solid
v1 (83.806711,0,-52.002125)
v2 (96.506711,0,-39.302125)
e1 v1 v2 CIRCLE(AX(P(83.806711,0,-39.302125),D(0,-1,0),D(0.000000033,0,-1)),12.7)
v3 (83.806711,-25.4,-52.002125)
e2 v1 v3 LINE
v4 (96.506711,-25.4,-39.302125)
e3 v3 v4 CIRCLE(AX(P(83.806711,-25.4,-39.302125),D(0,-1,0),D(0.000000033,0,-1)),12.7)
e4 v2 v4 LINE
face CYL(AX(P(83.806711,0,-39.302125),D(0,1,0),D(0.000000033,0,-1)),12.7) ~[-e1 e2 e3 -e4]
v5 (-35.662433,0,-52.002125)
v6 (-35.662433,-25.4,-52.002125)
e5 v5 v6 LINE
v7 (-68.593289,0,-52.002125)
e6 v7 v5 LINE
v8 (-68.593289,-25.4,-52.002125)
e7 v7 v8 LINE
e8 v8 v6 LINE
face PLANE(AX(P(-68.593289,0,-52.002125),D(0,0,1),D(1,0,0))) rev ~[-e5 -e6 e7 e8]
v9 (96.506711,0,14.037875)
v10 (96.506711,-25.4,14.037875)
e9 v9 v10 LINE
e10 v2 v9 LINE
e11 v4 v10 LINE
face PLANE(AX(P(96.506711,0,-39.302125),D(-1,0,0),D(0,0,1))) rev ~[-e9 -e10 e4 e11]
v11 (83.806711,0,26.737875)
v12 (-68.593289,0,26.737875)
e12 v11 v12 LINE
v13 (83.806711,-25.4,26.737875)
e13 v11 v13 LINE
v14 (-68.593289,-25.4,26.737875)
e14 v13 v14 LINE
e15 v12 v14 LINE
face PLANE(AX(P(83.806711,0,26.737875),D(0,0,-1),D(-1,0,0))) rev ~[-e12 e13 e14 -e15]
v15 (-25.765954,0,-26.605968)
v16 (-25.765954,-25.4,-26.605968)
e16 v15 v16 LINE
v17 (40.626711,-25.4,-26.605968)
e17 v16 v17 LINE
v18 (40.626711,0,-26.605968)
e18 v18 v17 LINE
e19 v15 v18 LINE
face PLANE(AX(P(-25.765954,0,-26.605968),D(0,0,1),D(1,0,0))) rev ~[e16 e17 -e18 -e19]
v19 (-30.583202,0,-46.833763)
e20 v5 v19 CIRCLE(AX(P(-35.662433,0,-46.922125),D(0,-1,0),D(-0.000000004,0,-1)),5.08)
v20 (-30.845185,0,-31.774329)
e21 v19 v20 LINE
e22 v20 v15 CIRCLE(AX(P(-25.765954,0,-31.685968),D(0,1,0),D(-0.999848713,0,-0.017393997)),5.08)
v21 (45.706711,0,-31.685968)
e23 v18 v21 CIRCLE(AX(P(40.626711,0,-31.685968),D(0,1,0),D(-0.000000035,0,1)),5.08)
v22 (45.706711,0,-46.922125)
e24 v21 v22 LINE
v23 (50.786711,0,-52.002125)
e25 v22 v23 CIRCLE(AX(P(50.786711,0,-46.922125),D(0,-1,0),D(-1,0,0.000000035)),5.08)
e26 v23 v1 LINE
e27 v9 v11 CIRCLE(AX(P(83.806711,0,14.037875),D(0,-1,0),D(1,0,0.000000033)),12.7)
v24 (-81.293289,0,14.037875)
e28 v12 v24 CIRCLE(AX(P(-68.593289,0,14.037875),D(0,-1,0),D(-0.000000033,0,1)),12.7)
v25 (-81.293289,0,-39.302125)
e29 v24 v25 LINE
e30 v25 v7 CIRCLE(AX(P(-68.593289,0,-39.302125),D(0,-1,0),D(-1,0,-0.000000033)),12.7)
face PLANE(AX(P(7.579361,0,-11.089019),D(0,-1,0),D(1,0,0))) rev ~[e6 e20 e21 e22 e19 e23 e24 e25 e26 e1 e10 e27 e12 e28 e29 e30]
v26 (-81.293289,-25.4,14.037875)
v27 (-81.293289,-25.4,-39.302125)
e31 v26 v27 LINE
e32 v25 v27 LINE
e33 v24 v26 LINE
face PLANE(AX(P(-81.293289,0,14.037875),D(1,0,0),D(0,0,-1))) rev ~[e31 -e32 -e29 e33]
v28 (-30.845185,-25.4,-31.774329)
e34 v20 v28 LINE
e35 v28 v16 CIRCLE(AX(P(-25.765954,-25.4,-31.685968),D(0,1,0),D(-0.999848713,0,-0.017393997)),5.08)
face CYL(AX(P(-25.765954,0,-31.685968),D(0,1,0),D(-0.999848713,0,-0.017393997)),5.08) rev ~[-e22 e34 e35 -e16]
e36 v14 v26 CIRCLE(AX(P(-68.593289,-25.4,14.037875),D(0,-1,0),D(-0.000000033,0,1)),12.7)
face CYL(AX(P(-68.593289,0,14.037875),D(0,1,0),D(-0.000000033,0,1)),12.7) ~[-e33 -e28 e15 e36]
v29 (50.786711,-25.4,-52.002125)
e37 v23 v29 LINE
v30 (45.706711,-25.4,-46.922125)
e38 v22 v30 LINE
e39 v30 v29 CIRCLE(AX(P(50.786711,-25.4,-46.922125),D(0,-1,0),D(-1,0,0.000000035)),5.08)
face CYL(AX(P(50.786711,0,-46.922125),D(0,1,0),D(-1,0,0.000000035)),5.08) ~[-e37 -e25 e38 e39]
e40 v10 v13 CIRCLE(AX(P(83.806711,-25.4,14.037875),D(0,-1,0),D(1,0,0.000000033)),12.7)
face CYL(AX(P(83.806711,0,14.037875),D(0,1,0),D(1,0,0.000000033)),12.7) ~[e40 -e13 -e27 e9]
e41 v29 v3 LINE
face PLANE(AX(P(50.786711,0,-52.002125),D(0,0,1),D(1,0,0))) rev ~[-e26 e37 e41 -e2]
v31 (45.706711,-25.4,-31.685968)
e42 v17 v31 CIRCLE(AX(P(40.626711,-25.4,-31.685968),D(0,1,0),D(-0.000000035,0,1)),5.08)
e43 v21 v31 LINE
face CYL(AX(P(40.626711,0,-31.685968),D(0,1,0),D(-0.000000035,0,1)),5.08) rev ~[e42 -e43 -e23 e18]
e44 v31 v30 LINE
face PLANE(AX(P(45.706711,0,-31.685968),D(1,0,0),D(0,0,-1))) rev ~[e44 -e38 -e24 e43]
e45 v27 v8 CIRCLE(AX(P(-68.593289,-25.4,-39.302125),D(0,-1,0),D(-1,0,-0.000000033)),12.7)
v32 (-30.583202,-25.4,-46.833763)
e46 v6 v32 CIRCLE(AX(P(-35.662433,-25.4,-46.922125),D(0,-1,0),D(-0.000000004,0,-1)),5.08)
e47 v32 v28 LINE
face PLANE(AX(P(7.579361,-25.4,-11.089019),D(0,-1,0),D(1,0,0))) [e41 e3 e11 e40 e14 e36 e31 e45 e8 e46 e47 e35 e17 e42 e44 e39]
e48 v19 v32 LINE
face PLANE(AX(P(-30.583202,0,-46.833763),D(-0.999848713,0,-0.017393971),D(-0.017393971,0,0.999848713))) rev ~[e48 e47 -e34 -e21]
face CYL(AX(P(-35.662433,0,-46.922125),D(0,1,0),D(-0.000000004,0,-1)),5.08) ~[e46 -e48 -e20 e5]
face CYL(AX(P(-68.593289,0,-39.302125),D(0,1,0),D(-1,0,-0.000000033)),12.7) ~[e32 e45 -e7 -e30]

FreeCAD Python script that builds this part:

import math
import FreeCAD as App
import Part
import Sketcher

V = App.Vector
Q = App.Units.Quantity

doc = App.newDocument("Part")
body = doc.addObject("PartDesign::Body", "Body")

# Sketch on XZ plane
sketch1 = body.newObject("Sketcher::SketchObject", "Sketch")
sketch1.AttachmentSupport = (doc.getObject("XZ_Plane"), [""])
sketch1.MapMode = "FlatFace"
sketch1.addGeometry(Part.LineSegment(V(83.806711, 26.737875, 0), V(-68.593289, 26.737875, 0)), False)
sketch1.addGeometry(Part.ArcOfCircle(Part.Circle(V(-68.593289, 14.037875, 0), V(0, 0, 1), 12.7), math.radians(90.000002), math.radians(179.999998)), False)
sketch1.addGeometry(Part.LineSegment(V(-81.293289, 14.037875, 0), V(-81.293289, -39.302125, 0)), False)
sketch1.addGeometry(Part.ArcOfCircle(Part.Circle(V(-68.593289, -39.302125, 0), V(0, 0, 1), 12.7), math.radians(-179.999998), math.radians(-90.000002)), False)
sketch1.addGeometry(Part.LineSegment(V(-68.593289, -52.002125, 0), V(-35.662433, -52.002125, 0)), False)
sketch1.addGeometry(Part.ArcOfCircle(Part.Circle(V(-35.662433, -46.922125, 0), V(0, 0, 1), 5.08), math.radians(-90), math.radians(0.996664)), False)
sketch1.addGeometry(Part.LineSegment(V(-30.583202, -46.833763, 0), V(-30.845185, -31.774329, 0)), False)
sketch1.addGeometry(Part.ArcOfCircle(Part.Circle(V(-25.765954, -31.685968, 0), V(0, 0, 1), 5.08), math.radians(90), math.radians(180.996653)), False)
sketch1.addGeometry(Part.LineSegment(V(-25.765954, -26.605968, 0), V(40.626711, -26.605968, 0)), False)
sketch1.addGeometry(Part.ArcOfCircle(Part.Circle(V(40.626711, -31.685968, 0), V(0, 0, 1), 5.08), math.radians(-0.000002), math.radians(90.000002)), False)
sketch1.addGeometry(Part.LineSegment(V(45.706711, -31.685968, 0), V(45.706711, -46.922125, 0)), False)
sketch1.addGeometry(Part.ArcOfCircle(Part.Circle(V(50.786711, -46.922125, 0), V(0, 0, 1), 5.08), math.radians(179.999998), math.radians(270.000002)), False)
sketch1.addGeometry(Part.LineSegment(V(50.786711, -52.002125, 0), V(83.806711, -52.002125, 0)), False)
sketch1.addGeometry(Part.ArcOfCircle(Part.Circle(V(83.806711, -39.302125, 0), V(0, 0, 1), 12.7), math.radians(-89.999998), math.radians(-0.000002)), False)
sketch1.addGeometry(Part.LineSegment(V(96.506711, -39.302125, 0), V(96.506711, 14.037875, 0)), False)
sketch1.addGeometry(Part.ArcOfCircle(Part.Circle(V(83.806711, 14.037875, 0), V(0, 0, 1), 12.7), math.radians(0.000002), math.radians(89.999998)), False)
sketch1.addConstraint(Sketcher.Constraint("Tangent", 0, 2, 1, 1))
sketch1.addConstraint(Sketcher.Constraint("Tangent", 1, 2, 2, 1))
sketch1.addConstraint(Sketcher.Constraint("Tangent", 2, 2, 3, 1))
sketch1.addConstraint(Sketcher.Constraint("Tangent", 3, 2, 4, 1))
sketch1.addConstraint(Sketcher.Constraint("Tangent", 4, 2, 5, 1))
sketch1.addConstraint(Sketcher.Constraint("Tangent", 5, 2, 6, 1))
sketch1.addConstraint(Sketcher.Constraint("Tangent", 6, 2, 7, 2))
sketch1.addConstraint(Sketcher.Constraint("Tangent", 7, 1, 8, 1))
sketch1.addConstraint(Sketcher.Constraint("Tangent", 8, 2, 9, 2))
sketch1.addConstraint(Sketcher.Constraint("Tangent", 9, 1, 10, 1))
sketch1.addConstraint(Sketcher.Constraint("Tangent", 10, 2, 11, 1))
sketch1.addConstraint(Sketcher.Constraint("Tangent", 11, 2, 12, 1))
sketch1.addConstraint(Sketcher.Constraint("Tangent", 12, 2, 13, 1))
sketch1.addConstraint(Sketcher.Constraint("Tangent", 13, 2, 14, 1))
sketch1.addConstraint(Sketcher.Constraint("Tangent", 14, 2, 15, 1))
sketch1.addConstraint(Sketcher.Constraint("Tangent", 15, 2, 0, 1))
sketch1.addConstraint(Sketcher.Constraint("Horizontal", 0))
sketch1.addConstraint(Sketcher.Constraint("Vertical", 2))
sketch1.addConstraint(Sketcher.Constraint("Horizontal", 4))
sketch1.addConstraint(Sketcher.Constraint("Horizontal", 8))
sketch1.addConstraint(Sketcher.Constraint("Vertical", 10))
sketch1.addConstraint(Sketcher.Constraint("Horizontal", 12))
sketch1.addConstraint(Sketcher.Constraint("Vertical", 14))
sketch1.addConstraint(Sketcher.Constraint("Equal", 1, 3))
sketch1.addConstraint(Sketcher.Constraint("Equal", 5, 7))
sketch1.addConstraint(Sketcher.Constraint("Equal", 7, 9))
sketch1.addConstraint(Sketcher.Constraint("Equal", 9, 11))
sketch1.addConstraint(Sketcher.Constraint("Equal", 3, 13))
sketch1.addConstraint(Sketcher.Constraint("Equal", 13, 15))
sketch1.addConstraint(Sketcher.Constraint("Horizontal", 5, 3, 11, 3))
sketch1.addConstraint(Sketcher.Constraint("Radius", 1, Q("0.5 in")))
sketch1.addConstraint(Sketcher.Constraint("Radius", 5, Q("0.2 in")))
sketch1.addConstraint(Sketcher.Constraint("DistanceX", 0, 2, 0, 1, Q("6 in")))
sketch1.addConstraint(Sketcher.Constraint("DistanceX", 12, 1, 12, 2, Q("1.3 in")))
sketch1.addConstraint(Sketcher.Constraint("DistanceY", 2, 2, 2, 1, Q("2.1 in")))
sketch1.addConstraint(Sketcher.Constraint("DistanceX", 5, 2, -1, 1, 30.583202))
sketch1.addConstraint(Sketcher.Constraint("DistanceX", 4, 1, 4, 2, 32.930856))
sketch1.addConstraint(Sketcher.Constraint("DistanceX", 8, 1, 8, 2, 66.392665))
sketch1.addConstraint(Sketcher.Constraint("DistanceY", 10, 2, 10, 1, 15.236157))
sketch1.addConstraint(Sketcher.Constraint("DistanceY", 6, 2, -1, 1, 31.774329))
pad1 = body.newObject("PartDesign::Pad", "Pad")
pad1.Profile = sketch1
pad1.Length = Q("1 in")

doc.recompute()
